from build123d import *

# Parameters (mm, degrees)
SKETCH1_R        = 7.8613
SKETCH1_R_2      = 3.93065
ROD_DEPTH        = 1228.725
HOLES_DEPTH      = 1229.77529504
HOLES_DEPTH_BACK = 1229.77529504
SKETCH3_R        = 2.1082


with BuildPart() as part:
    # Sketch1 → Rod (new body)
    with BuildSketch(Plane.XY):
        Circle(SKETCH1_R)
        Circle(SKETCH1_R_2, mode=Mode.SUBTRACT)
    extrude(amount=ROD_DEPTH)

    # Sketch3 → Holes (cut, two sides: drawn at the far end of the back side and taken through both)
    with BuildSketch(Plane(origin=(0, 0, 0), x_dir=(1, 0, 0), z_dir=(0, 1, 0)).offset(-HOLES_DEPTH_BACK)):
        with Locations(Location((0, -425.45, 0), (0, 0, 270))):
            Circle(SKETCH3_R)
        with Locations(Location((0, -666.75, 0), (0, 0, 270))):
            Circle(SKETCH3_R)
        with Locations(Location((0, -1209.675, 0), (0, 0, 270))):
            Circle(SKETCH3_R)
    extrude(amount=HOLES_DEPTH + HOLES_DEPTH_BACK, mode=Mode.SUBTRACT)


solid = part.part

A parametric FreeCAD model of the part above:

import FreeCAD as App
import Part
import Sketcher

V = App.Vector
Q = App.Units.Quantity

doc = App.newDocument("Part")
params = doc.addObject("Spreadsheet::Sheet", "Params")
for row, (alias, value) in enumerate([
    ("sketch1_diameter", "0.619 in"),
    ("pad1_length", "48.375 in"),
    ("sketch2_diameter", "0.166 in"),
], start=1):
    params.set(f"A{row}", alias)
    params.set(f"B{row}", "=" + value)
    params.setAlias(f"B{row}", alias)

body = doc.addObject("PartDesign::Body", "Body")

sketch1 = body.newObject("Sketcher::SketchObject", "Sketch")
sketch1.AttachmentSupport = (doc.getObject("XY_Plane"), [""])
sketch1.MapMode = "FlatFace"
sketch1.addGeometry(Part.Circle(V(0, 0, 0), V(0, 0, 1), 7.9), False)
sketch1.addGeometry(Part.Circle(V(0, 0, 0), V(0, 0, 1), 3.9), False)
sketch1.addConstraint(Sketcher.Constraint("Coincident", 0, 3, -1, 1))
sketch1.addConstraint(Sketcher.Constraint("Coincident", 1, 3, -1, 1))
sketch1.addConstraint(Sketcher.Constraint("Diameter", 0, Q("0.619 in")))
sketch1.addConstraint(Sketcher.Constraint("Diameter", 1, Q("0.3095 in")))
sketch1.setExpression("Constraints[2]", "Params.sketch1_diameter")
pad1 = body.newObject("PartDesign::Pad", "Pad")
pad1.Profile = sketch1
pad1.setExpression("Length", "Params.pad1_length")

sketch2 = body.newObject("Sketcher::SketchObject", "Sketch001")
sketch2.AttachmentSupport = (doc.getObject("XZ_Plane"), [""])
sketch2.MapMode = "FlatFace"
sketch2.addGeometry(Part.Circle(V(0, 425.4, 0), V(0, 0, 1), 2.1), False)
sketch2.addGeometry(Part.Circle(V(0, 666.8, 0), V(0, 0, 1), 2.1), False)
sketch2.addGeometry(Part.Circle(V(0, 1209.7, 0), V(0, 0, 1), 2.1), False)
sketch2.addConstraint(Sketcher.Constraint("Equal", 0, 1))
sketch2.addConstraint(Sketcher.Constraint("Equal", 1, 2))
sketch2.addConstraint(Sketcher.Constraint("PointOnObject", 0, 3, -2))
sketch2.addConstraint(Sketcher.Constraint("PointOnObject", 1, 3, -2))
sketch2.addConstraint(Sketcher.Constraint("PointOnObject", 2, 3, -2))
sketch2.addConstraint(Sketcher.Constraint("Diameter", 0, Q("0.166 in")))
sketch2.addConstraint(Sketcher.Constraint("DistanceY", 0, 3, 1, 3, Q("9.5 in")))
sketch2.addConstraint(Sketcher.Constraint("DistanceY", -1, 1, 0, 3, Q("16.75 in")))
sketch2.addConstraint(Sketcher.Constraint("DistanceY", -1, 1, 2, 3, Q("47.625 in")))
sketch2.setExpression("Constraints[5]", "Params.sketch2_diameter")
pocket1 = body.newObject("PartDesign::Pocket", "Pocket")
pocket1.Profile = sketch2
pocket1.Type = "ThroughAll"
pocket1.Midplane = True

doc.recompute()
